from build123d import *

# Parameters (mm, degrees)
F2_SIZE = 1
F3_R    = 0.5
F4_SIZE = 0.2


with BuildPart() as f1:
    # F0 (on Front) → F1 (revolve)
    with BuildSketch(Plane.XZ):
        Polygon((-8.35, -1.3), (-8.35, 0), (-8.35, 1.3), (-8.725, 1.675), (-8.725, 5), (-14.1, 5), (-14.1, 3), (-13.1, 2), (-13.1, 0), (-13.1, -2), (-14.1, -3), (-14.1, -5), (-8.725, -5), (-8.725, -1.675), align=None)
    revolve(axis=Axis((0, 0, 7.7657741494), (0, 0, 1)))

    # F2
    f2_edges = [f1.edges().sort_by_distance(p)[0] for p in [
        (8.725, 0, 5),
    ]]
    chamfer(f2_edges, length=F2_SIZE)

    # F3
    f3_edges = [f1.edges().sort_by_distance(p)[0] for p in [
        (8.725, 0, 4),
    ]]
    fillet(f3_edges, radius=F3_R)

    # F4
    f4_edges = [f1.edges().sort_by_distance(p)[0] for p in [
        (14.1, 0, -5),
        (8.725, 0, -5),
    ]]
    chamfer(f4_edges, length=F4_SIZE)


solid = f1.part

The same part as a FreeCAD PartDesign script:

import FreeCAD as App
import Part
import Sketcher

V = App.Vector


def edges_at(feature, points):
    """Names of the edges that pass closest to the given points."""
    edges = feature.Shape.Edges
    near = lambda p: min(range(len(edges)), key=lambda i: edges[i].distToShape(Part.Vertex(*p))[0])
    return sorted({f"Edge{near(p) + 1}" for p in points})

doc = App.newDocument("Part")
body = doc.addObject("PartDesign::Body", "Body")

# Sketch on XZ plane
sketch1 = body.newObject("Sketcher::SketchObject", "Sketch")
sketch1.AttachmentSupport = (doc.getObject("XZ_Plane"), [""])
sketch1.MapMode = "FlatFace"
sketch1.addGeometry([
    Part.LineSegment(V(-8.3, -1.3, 0), V(-8.3, 1.3, 0)),  # 0
    Part.LineSegment(V(-8.3, 1.3, 0), V(-8.7, 1.7, 0)),  # 1
    Part.LineSegment(V(-8.7, 1.7, 0), V(-8.7, 5, 0)),  # 2
    Part.LineSegment(V(-8.7, 5, 0), V(-14.1, 5, 0)),  # 3
    Part.LineSegment(V(-14.1, 5, 0), V(-14.1, 3, 0)),  # 4
    Part.LineSegment(V(-14.1, 3, 0), V(-13.1, 2, 0)),  # 5
    Part.LineSegment(V(-13.1, 2, 0), V(-13.1, -2, 0)),  # 6
    Part.LineSegment(V(-13.1, -2, 0), V(-14.1, -3, 0)),  # 7
    Part.LineSegment(V(-14.1, -3, 0), V(-14.1, -5, 0)),  # 8
    Part.LineSegment(V(-14.1, -5, 0), V(-8.7, -5, 0)),  # 9
    Part.LineSegment(V(-8.7, -5, 0), V(-8.7, -1.7, 0)),  # 10
    Part.LineSegment(V(-8.7, -1.7, 0), V(-8.3, -1.3, 0)),  # 11
], False)
sketch1.addConstraint([
    Sketcher.Constraint("Coincident", 0, 2, 1, 1),
    Sketcher.Constraint("Coincident", 1, 2, 2, 1),
    Sketcher.Constraint("Coincident", 2, 2, 3, 1),
    Sketcher.Constraint("Coincident", 3, 2, 4, 1),
    Sketcher.Constraint("Coincident", 4, 2, 5, 1),
    Sketcher.Constraint("Coincident", 5, 2, 6, 1),
    Sketcher.Constraint("Coincident", 6, 2, 7, 1),
    Sketcher.Constraint("Coincident", 7, 2, 8, 1),
    Sketcher.Constraint("Coincident", 8, 2, 9, 1),
    Sketcher.Constraint("Coincident", 9, 2, 10, 1),
    Sketcher.Constraint("Coincident", 10, 2, 11, 1),
    Sketcher.Constraint("Coincident", 11, 2, 0, 1),
    Sketcher.Constraint("Vertical", 0),
    Sketcher.Constraint("Vertical", 2),
    Sketcher.Constraint("Horizontal", 3),
    Sketcher.Constraint("Vertical", 4),
    Sketcher.Constraint("Vertical", 6),
    Sketcher.Constraint("Vertical", 8),
    Sketcher.Constraint("Horizontal", 9),
    Sketcher.Constraint("Vertical", 10),
    Sketcher.Constraint("Symmetric", 4, 2, 7, 2, -1),
    Sketcher.Constraint("Symmetric", 2, 2, 9, 2, -1),
    Sketcher.Constraint("Parallel", 1, 5),
    Sketcher.Constraint("Perpendicular", 5, 7),
    Sketcher.Constraint("Parallel", 7, 11),
    Sketcher.Constraint("Equal", 2, 10),
    Sketcher.Constraint("Equal", 5, 7),
    Sketcher.Constraint("DistanceY", 4, 2, 4, 1, 2.0),
    Sketcher.Constraint("DistanceY", 6, 2, 6, 1, 4.0),
    Sketcher.Constraint("DistanceY", 0, 1, 0, 2, 2.6),
    Sketcher.Constraint("DistanceY", -1, 1, 2, 2, 5.0),
    Sketcher.Constraint("DistanceX", 3, 2, -1, 1, 14.1),
    Sketcher.Constraint("DistanceX", 3, 2, 3, 1, 5.375),
    Sketcher.Constraint("DistanceY", 2, 1, 2, 2, 3.325),
])
revolution = body.newObject("PartDesign::Revolution", "Revolution")
revolution.Profile = sketch1
revolution.ReferenceAxis = (sketch1, ["V_Axis"])
revolution.Angle = 360
doc.recompute()

chamfer = body.newObject("PartDesign::Chamfer", "Chamfer")
chamfer.Base = (revolution, edges_at(revolution, [(8.725, 0, 5)]))
chamfer.Size = 1
doc.recompute()

fillet = body.newObject("PartDesign::Fillet", "Fillet")
fillet.Base = (chamfer, edges_at(chamfer, [(8.725, 0, 4)]))
fillet.Radius = 0.5
doc.recompute()

chamfer2 = body.newObject("PartDesign::Chamfer", "Chamfer001")
chamfer2.Base = (fillet, edges_at(fillet, [(14.1, 0, -5), (8.725, 0, -5)]))
chamfer2.Size = 0.2

doc.recompute()
